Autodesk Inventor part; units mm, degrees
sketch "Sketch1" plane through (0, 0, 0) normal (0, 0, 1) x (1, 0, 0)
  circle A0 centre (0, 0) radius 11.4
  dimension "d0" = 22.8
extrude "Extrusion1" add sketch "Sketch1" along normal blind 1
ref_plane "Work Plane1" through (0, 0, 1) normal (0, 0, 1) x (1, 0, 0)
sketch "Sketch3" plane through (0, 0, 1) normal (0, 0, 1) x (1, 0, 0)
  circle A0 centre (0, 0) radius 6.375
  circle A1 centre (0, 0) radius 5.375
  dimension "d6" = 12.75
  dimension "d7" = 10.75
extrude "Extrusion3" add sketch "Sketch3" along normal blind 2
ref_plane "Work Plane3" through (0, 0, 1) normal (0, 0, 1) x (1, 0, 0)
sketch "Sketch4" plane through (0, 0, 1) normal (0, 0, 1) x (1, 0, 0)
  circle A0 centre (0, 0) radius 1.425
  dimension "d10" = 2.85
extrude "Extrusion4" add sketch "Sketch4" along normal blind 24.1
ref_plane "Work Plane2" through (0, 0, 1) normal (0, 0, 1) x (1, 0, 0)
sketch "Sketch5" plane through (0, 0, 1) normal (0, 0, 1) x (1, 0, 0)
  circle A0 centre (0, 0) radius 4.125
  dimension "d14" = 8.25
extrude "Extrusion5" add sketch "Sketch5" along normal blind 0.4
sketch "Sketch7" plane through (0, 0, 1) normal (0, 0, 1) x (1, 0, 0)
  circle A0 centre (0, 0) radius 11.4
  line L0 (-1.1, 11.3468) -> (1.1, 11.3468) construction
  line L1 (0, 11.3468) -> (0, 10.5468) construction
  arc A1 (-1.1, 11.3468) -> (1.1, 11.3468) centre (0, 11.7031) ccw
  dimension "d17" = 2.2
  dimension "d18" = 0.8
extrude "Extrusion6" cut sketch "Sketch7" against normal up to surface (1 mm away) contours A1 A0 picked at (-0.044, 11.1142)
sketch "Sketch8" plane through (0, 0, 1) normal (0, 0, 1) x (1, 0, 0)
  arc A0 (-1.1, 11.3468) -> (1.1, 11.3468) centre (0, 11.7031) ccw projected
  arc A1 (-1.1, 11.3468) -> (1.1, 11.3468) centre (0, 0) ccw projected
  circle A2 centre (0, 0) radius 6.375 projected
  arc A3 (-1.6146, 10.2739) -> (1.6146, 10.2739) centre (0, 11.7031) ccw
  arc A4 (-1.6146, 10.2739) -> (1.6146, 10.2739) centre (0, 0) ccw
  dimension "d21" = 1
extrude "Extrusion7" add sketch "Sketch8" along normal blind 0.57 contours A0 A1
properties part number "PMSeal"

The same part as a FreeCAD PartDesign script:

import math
import FreeCAD as App
import Part
import Sketcher

V = App.Vector
Q = App.Units.Quantity

doc = App.newDocument("Part")
body = doc.addObject("PartDesign::Body", "Body")

sketch1 = doc.addObject("Sketcher::SketchObject", "Sketch")
body.addObject(sketch1)
sketch1.AttachmentSupport = (doc.XY_Plane, [""])
sketch1.MapMode = "FlatFace"
sketch1.addGeometry(Part.Circle(V(0, 0, 0), V(0, 0, 1), 11.4), False)
sketch1.addConstraint([
    Sketcher.Constraint("Coincident", 0, 3, -1, 1),
    Sketcher.Constraint("Diameter", 0, Q("22.8 mm")),
])
pad1 = doc.addObject("PartDesign::Pad", "Pad")
body.addObject(pad1)
pad1.Profile = sketch1
pad1.Length = 1

sketch2 = doc.addObject("Sketcher::SketchObject", "Sketch001")
body.addObject(sketch2)
sketch2.AttachmentSupport = (doc.XY_Plane, [""])
sketch2.MapMode = "FlatFace"
sketch2.AttachmentOffset = App.Placement(V(0, 0, 1), App.Rotation())
sketch2.addGeometry([
    Part.Circle(V(0, 0, 0), V(0, 0, 1), 6.375),
    Part.Circle(V(0, 0, 0), V(0, 0, 1), 5.375),
], False)
sketch2.addConstraint([
    Sketcher.Constraint("Coincident", 0, 3, -1, 1),
    Sketcher.Constraint("Coincident", 1, 3, -1, 1),
    Sketcher.Constraint("Diameter", 0, Q("12.75 mm")),
    Sketcher.Constraint("Diameter", 1, Q("10.75 mm")),
])
pad2 = doc.addObject("PartDesign::Pad", "Pad001")
body.addObject(pad2)
pad2.Profile = sketch2
pad2.Length = 2

sketch3 = doc.addObject("Sketcher::SketchObject", "Sketch002")
body.addObject(sketch3)
sketch3.AttachmentSupport = (doc.XY_Plane, [""])
sketch3.MapMode = "FlatFace"
sketch3.AttachmentOffset = App.Placement(V(0, 0, 1), App.Rotation())
sketch3.addGeometry(Part.Circle(V(0, 0, 0), V(0, 0, 1), 1.425), False)
sketch3.addConstraint([
    Sketcher.Constraint("Coincident", 0, 3, -1, 1),
    Sketcher.Constraint("Diameter", 0, Q("2.85 mm")),
])
pad3 = doc.addObject("PartDesign::Pad", "Pad002")
body.addObject(pad3)
pad3.Profile = sketch3
pad3.Length = 24.1

sketch4 = doc.addObject("Sketcher::SketchObject", "Sketch003")
body.addObject(sketch4)
sketch4.AttachmentSupport = (doc.XY_Plane, [""])
sketch4.MapMode = "FlatFace"
sketch4.AttachmentOffset = App.Placement(V(0, 0, 1), App.Rotation())
sketch4.addGeometry(Part.Circle(V(0, 0, 0), V(0, 0, 1), 4.125), False)
sketch4.addConstraint([
    Sketcher.Constraint("Coincident", 0, 3, -1, 1),
    Sketcher.Constraint("Diameter", 0, Q("8.25 mm")),
])
pad4 = doc.addObject("PartDesign::Pad", "Pad003")
body.addObject(pad4)
pad4.Profile = sketch4
pad4.Length = 0.4

sketch5 = doc.addObject("Sketcher::SketchObject", "Sketch004")
body.addObject(sketch5)
sketch5.AttachmentSupport = (doc.XY_Plane, [""])
sketch5.MapMode = "FlatFace"
sketch5.AttachmentOffset = App.Placement(V(0, 0, 1), App.Rotation())
sketch5.addGeometry([
    Part.ArcOfCircle(Part.Circle(V(0, 11.7031, 0), V(0, 0, 1), 1.156265), math.radians(-162.05239), math.radians(-17.94761)),
    Part.ArcOfCircle(Part.Circle(V(0, 0, 0), V(0, 0, 1), 11.4), math.radians(84.462842), math.radians(95.537158)),
], False)
sketch5.addConstraint([
    Sketcher.Constraint("Coincident", 0, 1, 1, 2),
    Sketcher.Constraint("Coincident", 1, 1, 0, 2),
    Sketcher.Constraint("Coincident", 1, 3, -1, 1),
    Sketcher.Constraint("PointOnObject", 0, 3, -2),
    Sketcher.Constraint("Radius", 1, Q("11.4 mm")),
    Sketcher.Constraint("DistanceX", 0, 1, 1, 1, Q("2.2 mm")),
    Sketcher.Constraint("Radius", 0, Q("1.1563 mm")),
])
pocket1 = doc.addObject("PartDesign::Pocket", "Pocket")
body.addObject(pocket1)
pocket1.Profile = sketch5
pocket1.Length = 1

sketch6 = doc.addObject("Sketcher::SketchObject", "Sketch005")
body.addObject(sketch6)
sketch6.AttachmentSupport = (doc.XY_Plane, [""])
sketch6.MapMode = "FlatFace"
sketch6.AttachmentOffset = App.Placement(V(0, 0, 1), App.Rotation())
sketch6.addGeometry([
    Part.ArcOfCircle(Part.Circle(V(0, 11.7031, 0), V(0, 0, 1), 1.156265), math.radians(-162.05239), math.radians(-17.94761)),
    Part.ArcOfCircle(Part.Circle(V(0, 0, 0), V(0, 0, 1), 11.399994), math.radians(95.537158), math.radians(444.462842)),
    Part.ArcOfCircle(Part.Circle(V(0, 0, 0), V(0, 0, 1), 10.399998), math.radians(98.931298), math.radians(441.068702)),
    Part.ArcOfCircle(Part.Circle(V(0, 11.7031, 0), V(0, 0, 1), 2.156281), math.radians(-138.48562), math.radians(-41.51438)),
], False)
sketch6.addConstraint([
    Sketcher.Constraint("Coincident", 0, 1, 1, 1),
    Sketcher.Constraint("Coincident", 1, 2, 0, 2),
    Sketcher.Constraint("Coincident", 2, 1, 3, 1),
    Sketcher.Constraint("Coincident", 3, 2, 2, 2),
    Sketcher.Constraint("Coincident", 1, 3, -1, 1),
    Sketcher.Constraint("Coincident", 2, 3, -1, 1),
    Sketcher.Constraint("Coincident", 3, 3, 0, 3),
    Sketcher.Constraint("PointOnObject", 0, 3, -2),
    Sketcher.Constraint("Radius", 1, Q("11.4 mm")),
    Sketcher.Constraint("Radius", 2, Q("10.4 mm")),
    Sketcher.Constraint("DistanceX", 0, 1, -1, 1, Q("1.1 mm")),
    Sketcher.Constraint("Radius", 0, Q("1.1563 mm")),
    Sketcher.Constraint("Radius", 3, Q("2.1563 mm")),
])
pad5 = doc.addObject("PartDesign::Pad", "Pad004")
body.addObject(pad5)
pad5.Profile = sketch6
pad5.Length = 0.57

doc.recompute()
